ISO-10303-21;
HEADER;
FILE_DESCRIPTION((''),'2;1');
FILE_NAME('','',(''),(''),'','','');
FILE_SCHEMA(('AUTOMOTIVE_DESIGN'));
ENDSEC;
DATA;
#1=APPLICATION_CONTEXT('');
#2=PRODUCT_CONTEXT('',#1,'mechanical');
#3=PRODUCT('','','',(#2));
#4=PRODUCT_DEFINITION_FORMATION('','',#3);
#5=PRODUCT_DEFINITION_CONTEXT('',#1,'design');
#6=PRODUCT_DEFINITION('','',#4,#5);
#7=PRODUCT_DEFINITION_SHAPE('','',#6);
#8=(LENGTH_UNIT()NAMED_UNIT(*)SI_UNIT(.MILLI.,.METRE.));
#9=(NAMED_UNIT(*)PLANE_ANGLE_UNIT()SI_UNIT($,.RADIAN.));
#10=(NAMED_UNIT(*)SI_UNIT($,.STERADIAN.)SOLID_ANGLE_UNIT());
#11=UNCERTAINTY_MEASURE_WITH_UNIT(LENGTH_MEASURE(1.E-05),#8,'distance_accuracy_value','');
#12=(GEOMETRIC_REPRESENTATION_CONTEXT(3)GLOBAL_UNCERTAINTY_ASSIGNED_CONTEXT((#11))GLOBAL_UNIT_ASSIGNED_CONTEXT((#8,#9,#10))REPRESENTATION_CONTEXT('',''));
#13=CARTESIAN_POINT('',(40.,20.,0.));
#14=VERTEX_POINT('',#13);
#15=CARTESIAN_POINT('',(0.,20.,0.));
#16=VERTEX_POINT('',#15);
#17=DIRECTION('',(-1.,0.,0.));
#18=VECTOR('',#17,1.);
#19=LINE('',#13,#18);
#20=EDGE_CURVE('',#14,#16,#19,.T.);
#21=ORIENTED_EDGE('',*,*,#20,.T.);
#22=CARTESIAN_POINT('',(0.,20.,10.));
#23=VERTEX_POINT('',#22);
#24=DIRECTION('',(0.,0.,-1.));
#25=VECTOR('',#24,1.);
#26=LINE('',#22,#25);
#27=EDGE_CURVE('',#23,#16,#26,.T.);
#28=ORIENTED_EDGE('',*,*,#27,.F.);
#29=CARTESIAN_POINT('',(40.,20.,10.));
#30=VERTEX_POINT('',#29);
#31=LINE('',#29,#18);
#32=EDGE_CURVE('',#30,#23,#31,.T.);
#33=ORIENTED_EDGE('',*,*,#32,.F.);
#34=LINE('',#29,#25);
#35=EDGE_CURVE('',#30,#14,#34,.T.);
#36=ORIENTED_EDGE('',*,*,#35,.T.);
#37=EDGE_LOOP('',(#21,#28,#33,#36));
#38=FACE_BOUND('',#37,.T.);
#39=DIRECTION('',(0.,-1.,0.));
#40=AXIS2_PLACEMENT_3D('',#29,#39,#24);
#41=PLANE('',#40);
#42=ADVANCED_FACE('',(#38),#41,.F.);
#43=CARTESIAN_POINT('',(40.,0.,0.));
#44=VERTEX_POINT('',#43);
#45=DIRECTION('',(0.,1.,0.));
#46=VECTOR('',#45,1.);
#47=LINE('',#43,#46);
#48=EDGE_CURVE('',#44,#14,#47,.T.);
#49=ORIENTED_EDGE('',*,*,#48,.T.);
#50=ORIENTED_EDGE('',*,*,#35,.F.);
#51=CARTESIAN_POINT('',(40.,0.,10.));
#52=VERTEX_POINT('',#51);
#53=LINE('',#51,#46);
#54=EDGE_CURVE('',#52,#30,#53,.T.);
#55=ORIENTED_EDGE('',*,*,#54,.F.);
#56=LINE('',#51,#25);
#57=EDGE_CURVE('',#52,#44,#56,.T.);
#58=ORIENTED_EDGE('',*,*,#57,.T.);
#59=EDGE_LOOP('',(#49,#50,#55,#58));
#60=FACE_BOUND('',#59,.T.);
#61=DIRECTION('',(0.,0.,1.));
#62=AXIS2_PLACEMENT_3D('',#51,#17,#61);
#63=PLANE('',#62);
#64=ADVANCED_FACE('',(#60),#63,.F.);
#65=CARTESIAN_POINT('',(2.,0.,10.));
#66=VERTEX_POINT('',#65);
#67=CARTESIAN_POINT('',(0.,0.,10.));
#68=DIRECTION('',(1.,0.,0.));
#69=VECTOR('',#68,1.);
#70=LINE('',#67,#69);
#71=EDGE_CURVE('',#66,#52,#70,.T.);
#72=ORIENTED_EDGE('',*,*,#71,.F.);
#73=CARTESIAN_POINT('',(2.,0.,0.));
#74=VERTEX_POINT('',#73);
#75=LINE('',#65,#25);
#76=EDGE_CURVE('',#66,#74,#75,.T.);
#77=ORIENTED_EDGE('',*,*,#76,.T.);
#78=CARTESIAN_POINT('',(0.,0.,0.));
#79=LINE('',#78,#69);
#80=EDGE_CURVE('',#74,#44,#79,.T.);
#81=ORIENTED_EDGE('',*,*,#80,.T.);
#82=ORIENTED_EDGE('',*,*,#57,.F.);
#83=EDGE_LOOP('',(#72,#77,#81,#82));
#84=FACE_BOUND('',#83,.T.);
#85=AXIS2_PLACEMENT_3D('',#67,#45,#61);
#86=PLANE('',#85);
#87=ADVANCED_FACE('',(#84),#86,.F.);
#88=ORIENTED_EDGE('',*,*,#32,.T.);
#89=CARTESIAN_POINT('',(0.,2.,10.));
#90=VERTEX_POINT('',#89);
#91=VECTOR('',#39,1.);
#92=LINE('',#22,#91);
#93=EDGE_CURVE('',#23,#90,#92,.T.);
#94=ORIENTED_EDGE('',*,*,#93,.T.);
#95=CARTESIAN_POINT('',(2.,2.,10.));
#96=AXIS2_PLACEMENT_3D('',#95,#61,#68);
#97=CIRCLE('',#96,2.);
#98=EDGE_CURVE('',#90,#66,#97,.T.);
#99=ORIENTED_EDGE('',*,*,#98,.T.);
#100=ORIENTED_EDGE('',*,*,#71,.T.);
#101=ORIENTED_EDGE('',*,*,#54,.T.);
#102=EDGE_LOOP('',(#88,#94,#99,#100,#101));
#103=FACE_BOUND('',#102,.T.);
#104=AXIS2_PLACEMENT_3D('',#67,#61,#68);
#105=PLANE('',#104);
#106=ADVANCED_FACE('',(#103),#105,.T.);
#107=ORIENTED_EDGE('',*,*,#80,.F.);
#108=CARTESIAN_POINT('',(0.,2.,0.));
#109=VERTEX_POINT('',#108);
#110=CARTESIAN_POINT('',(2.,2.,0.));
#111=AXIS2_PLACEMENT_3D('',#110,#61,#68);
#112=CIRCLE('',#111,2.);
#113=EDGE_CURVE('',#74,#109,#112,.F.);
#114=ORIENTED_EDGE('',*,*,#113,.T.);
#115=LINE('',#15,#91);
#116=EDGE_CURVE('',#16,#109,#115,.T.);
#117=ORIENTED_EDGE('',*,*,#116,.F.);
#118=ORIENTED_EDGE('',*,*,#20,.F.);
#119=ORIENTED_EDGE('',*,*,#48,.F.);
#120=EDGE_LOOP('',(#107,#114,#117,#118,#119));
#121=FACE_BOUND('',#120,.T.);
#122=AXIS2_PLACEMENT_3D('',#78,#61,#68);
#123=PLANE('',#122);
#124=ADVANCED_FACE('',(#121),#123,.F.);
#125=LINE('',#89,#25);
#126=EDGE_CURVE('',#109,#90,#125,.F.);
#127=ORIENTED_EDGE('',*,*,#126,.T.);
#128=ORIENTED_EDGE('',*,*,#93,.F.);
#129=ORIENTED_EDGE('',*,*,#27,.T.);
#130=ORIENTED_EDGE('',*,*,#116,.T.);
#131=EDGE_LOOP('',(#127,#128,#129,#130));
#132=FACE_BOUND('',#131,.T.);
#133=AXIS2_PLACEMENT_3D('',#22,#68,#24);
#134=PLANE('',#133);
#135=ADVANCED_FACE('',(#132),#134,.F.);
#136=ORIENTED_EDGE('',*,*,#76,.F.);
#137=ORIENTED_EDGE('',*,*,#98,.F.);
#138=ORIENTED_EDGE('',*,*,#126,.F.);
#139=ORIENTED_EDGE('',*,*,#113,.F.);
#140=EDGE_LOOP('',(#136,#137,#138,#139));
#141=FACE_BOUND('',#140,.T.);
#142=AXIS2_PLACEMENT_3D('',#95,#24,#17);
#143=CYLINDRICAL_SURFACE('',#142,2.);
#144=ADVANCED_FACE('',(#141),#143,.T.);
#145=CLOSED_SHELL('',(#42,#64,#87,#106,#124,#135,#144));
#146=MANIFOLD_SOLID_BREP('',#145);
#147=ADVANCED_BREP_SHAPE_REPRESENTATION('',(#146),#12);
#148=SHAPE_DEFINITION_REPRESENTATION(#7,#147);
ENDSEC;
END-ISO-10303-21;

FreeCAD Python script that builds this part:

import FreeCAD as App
import Part
import Sketcher

V = App.Vector


def edges_at(feature, points):
    """Names of the edges that pass closest to the given points."""
    edges = feature.Shape.Edges
    near = lambda p: min(range(len(edges)), key=lambda i: edges[i].distToShape(Part.Vertex(*p))[0])
    return sorted({f"Edge{near(p) + 1}" for p in points})


def add_polygon(sketch, points):
    """Adds a closed chain of lines whose ends are joined by coincident constraints."""
    first, n = sketch.GeometryCount, len(points)
    for a, b in zip(points, points[1:] + points[:1]):
        sketch.addGeometry(Part.LineSegment(App.Vector(*a, 0), App.Vector(*b, 0)), False)
    for i in range(n):
        sketch.addConstraint(Sketcher.Constraint("Coincident", first + i, 2, first + (i + 1) % n, 1))

doc = App.newDocument("Part")
body = doc.addObject("PartDesign::Body", "Body")

# Sketch on XY plane
sketch1 = doc.addObject("Sketcher::SketchObject", "Sketch")
body.addObject(sketch1)
sketch1.AttachmentSupport = (doc.XY_Plane, [""])
sketch1.MapMode = "FlatFace"
add_polygon(sketch1, [(0, 20), (0, 0), (40, 0), (40, 20)])  # lines 0-3
sketch1.addConstraint([
    Sketcher.Constraint("Vertical", 0),
    Sketcher.Constraint("Horizontal", 1),
    Sketcher.Constraint("Vertical", 2),
    Sketcher.Constraint("Horizontal", 3),
    Sketcher.Constraint("Coincident", 0, 2, -1, 1),
    Sketcher.Constraint("DistanceX", 1, 1, 1, 2, 40.0),
    Sketcher.Constraint("DistanceY", 0, 2, 0, 1, 20.0),
])
pad1 = doc.addObject("PartDesign::Pad", "Pad")
body.addObject(pad1)
pad1.Profile = sketch1
pad1.Length = 10
doc.recompute()

fillet = doc.addObject("PartDesign::Fillet", "Fillet")
body.addObject(fillet)
fillet.Base = (pad1, edges_at(pad1, [(0, 0, 5)]))
fillet.Radius = 2

doc.recompute()
